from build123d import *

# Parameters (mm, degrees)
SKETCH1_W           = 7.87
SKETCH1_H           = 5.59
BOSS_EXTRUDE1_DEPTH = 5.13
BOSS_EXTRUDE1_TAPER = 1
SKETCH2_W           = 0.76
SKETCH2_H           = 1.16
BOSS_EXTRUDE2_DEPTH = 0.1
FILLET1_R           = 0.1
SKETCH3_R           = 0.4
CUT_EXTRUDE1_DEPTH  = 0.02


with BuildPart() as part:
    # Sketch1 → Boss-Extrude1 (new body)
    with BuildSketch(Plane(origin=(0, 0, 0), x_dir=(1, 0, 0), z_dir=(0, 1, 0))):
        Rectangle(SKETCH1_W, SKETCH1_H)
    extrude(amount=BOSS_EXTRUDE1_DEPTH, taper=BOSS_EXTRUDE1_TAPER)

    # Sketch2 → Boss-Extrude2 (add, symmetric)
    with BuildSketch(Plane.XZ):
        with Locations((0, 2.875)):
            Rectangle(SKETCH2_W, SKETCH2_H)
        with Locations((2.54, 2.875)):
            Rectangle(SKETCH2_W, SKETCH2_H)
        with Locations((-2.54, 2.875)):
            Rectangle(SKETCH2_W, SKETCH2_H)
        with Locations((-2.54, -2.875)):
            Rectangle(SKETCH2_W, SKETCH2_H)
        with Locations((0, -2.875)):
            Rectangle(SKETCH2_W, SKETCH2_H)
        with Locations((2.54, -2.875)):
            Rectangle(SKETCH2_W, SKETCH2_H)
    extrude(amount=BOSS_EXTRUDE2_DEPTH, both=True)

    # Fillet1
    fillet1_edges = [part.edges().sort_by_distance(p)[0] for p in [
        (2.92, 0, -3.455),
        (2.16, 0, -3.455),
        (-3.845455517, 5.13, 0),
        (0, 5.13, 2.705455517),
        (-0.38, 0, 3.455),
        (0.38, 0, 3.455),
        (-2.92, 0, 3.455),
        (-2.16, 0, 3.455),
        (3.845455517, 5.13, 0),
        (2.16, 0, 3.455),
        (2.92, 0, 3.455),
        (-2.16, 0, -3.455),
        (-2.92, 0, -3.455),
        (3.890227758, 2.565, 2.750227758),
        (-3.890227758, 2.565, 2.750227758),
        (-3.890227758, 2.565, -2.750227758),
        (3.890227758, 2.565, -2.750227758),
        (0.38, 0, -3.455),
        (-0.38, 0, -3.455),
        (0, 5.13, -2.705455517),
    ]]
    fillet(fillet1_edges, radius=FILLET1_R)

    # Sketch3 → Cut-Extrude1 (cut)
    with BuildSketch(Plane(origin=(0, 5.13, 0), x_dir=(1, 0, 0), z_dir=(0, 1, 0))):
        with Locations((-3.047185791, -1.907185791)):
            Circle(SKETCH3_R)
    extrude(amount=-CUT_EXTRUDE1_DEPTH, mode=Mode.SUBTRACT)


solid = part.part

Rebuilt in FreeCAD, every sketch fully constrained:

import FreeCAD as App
import Part
import Sketcher


def edges_at(feature, points):
    """Names of the edges that pass closest to the given points."""
    edges = feature.Shape.Edges
    near = lambda p: min(range(len(edges)), key=lambda i: edges[i].distToShape(Part.Vertex(*p))[0])
    return sorted({f"Edge{near(p) + 1}" for p in points})

doc = App.newDocument("Part")
params = doc.addObject("Spreadsheet::Sheet", "Params")
for row, (alias, value) in enumerate([
    ("sketch1_width", "7.87 mm"),
    ("sketch1_height", "5.59 mm"),
    ("pad1_length", "5.13 mm"),
    ("pad1_taper", "-1 deg"),
    ("sketch2_width", "0.76 mm"),
    ("sketch2_height", "1.16 mm"),
    ("pad2_length", "0.2 mm"),
    ("fillet_radius", "0.1 mm"),
    ("sketch3_diameter", "0.8 mm"),
    ("pocket1_length", "0.02 mm"),
], start=1):
    params.set(f"A{row}", alias)
    params.set(f"B{row}", "=" + value)
    params.setAlias(f"B{row}", alias)

body = doc.addObject("PartDesign::Body", "Body")

# Sketch on XZ plane
sketch1 = body.newObject("Sketcher::SketchObject", "Sketch")
sketch1.AttachmentSupport = (doc.getObject("XZ_Plane"), [""])
sketch1.MapMode = "FlatFace"
sketch1.addGeometry([
    Part.LineSegment(App.Vector(-4, -3, 0), App.Vector(-4, 3, 0)),
    Part.LineSegment(App.Vector(-4, 3, 0), App.Vector(4, 3, 0)),
    Part.LineSegment(App.Vector(4, 3, 0), App.Vector(4, -3, 0)),
    Part.LineSegment(App.Vector(4, -3, 0), App.Vector(-4, -3, 0)),
], False)
sketch1.addConstraint([
    Sketcher.Constraint("Coincident", 0, 2, 1, 1),
    Sketcher.Constraint("Coincident", 1, 2, 2, 1),
    Sketcher.Constraint("Coincident", 2, 2, 3, 1),
    Sketcher.Constraint("Coincident", 3, 2, 0, 1),
    Sketcher.Constraint("Vertical", 0),
    Sketcher.Constraint("Horizontal", 1),
    Sketcher.Constraint("Vertical", 2),
    Sketcher.Constraint("Horizontal", 3),
    Sketcher.Constraint("Symmetric", 0, 2, 2, 2, -1, 1),
    Sketcher.Constraint("DistanceX", 1, 1, 1, 2, 7.87),
    Sketcher.Constraint("DistanceY", 0, 1, 0, 2, 5.59),
])
sketch1.setExpression("Constraints[9]", "Params.sketch1_width")
sketch1.setExpression("Constraints[10]", "Params.sketch1_height")
pad1 = body.newObject("PartDesign::Pad", "Pad")
pad1.Profile = sketch1
pad1.setExpression("Length", "Params.pad1_length")
pad1.Reversed = True
pad1.setExpression("TaperAngle", "Params.pad1_taper")

# Sketch on XZ plane
sketch2 = body.newObject("Sketcher::SketchObject", "Sketch001")
sketch2.AttachmentSupport = (doc.getObject("XZ_Plane"), [""])
sketch2.MapMode = "FlatFace"
sketch2.addGeometry([
    Part.LineSegment(App.Vector(-0.4, 3.5, 0), App.Vector(-0.4, 2.3, 0)),  # 0
    Part.LineSegment(App.Vector(-0.4, 2.3, 0), App.Vector(0.4, 2.3, 0)),  # 1
    Part.LineSegment(App.Vector(0.4, 2.3, 0), App.Vector(0.4, 3.5, 0)),  # 2
    Part.LineSegment(App.Vector(0.4, 3.5, 0), App.Vector(-0.4, 3.5, 0)),  # 3
    Part.LineSegment(App.Vector(2.2, 3.5, 0), App.Vector(2.2, 2.3, 0)),  # 4
    Part.LineSegment(App.Vector(2.2, 2.3, 0), App.Vector(2.9, 2.3, 0)),  # 5
    Part.LineSegment(App.Vector(2.9, 2.3, 0), App.Vector(2.9, 3.5, 0)),  # 6
    Part.LineSegment(App.Vector(2.9, 3.5, 0), App.Vector(2.2, 3.5, 0)),  # 7
    Part.LineSegment(App.Vector(-2.9, 3.5, 0), App.Vector(-2.9, 2.3, 0)),  # 8
    Part.LineSegment(App.Vector(-2.9, 2.3, 0), App.Vector(-2.2, 2.3, 0)),  # 9
    Part.LineSegment(App.Vector(-2.2, 2.3, 0), App.Vector(-2.2, 3.5, 0)),  # 10
    Part.LineSegment(App.Vector(-2.2, 3.5, 0), App.Vector(-2.9, 3.5, 0)),  # 11
    Part.LineSegment(App.Vector(-2.9, -2.3, 0), App.Vector(-2.9, -3.5, 0)),  # 12
    Part.LineSegment(App.Vector(-2.9, -3.5, 0), App.Vector(-2.2, -3.5, 0)),  # 13
    Part.LineSegment(App.Vector(-2.2, -3.5, 0), App.Vector(-2.2, -2.3, 0)),  # 14
    Part.LineSegment(App.Vector(-2.2, -2.3, 0), App.Vector(-2.9, -2.3, 0)),  # 15
    Part.LineSegment(App.Vector(-0.4, -2.3, 0), App.Vector(-0.4, -3.5, 0)),  # 16
    Part.LineSegment(App.Vector(-0.4, -3.5, 0), App.Vector(0.4, -3.5, 0)),  # 17
    Part.LineSegment(App.Vector(0.4, -3.5, 0), App.Vector(0.4, -2.3, 0)),  # 18
    Part.LineSegment(App.Vector(0.4, -2.3, 0), App.Vector(-0.4, -2.3, 0)),  # 19
    Part.LineSegment(App.Vector(2.2, -2.3, 0), App.Vector(2.2, -3.5, 0)),  # 20
    Part.LineSegment(App.Vector(2.2, -3.5, 0), App.Vector(2.9, -3.5, 0)),  # 21
    Part.LineSegment(App.Vector(2.9, -3.5, 0), App.Vector(2.9, -2.3, 0)),  # 22
    Part.LineSegment(App.Vector(2.9, -2.3, 0), App.Vector(2.2, -2.3, 0)),  # 23
], False)
sketch2.addConstraint([
    Sketcher.Constraint("Coincident", 0, 2, 1, 1),
    Sketcher.Constraint("Coincident", 1, 2, 2, 1),
    Sketcher.Constraint("Coincident", 2, 2, 3, 1),
    Sketcher.Constraint("Coincident", 3, 2, 0, 1),
    Sketcher.Constraint("Coincident", 4, 2, 5, 1),
    Sketcher.Constraint("Coincident", 5, 2, 6, 1),
    Sketcher.Constraint("Coincident", 6, 2, 7, 1),
    Sketcher.Constraint("Coincident", 7, 2, 4, 1),
    Sketcher.Constraint("Coincident", 8, 2, 9, 1),
    Sketcher.Constraint("Coincident", 9, 2, 10, 1),
    Sketcher.Constraint("Coincident", 10, 2, 11, 1),
    Sketcher.Constraint("Coincident", 11, 2, 8, 1),
    Sketcher.Constraint("Coincident", 12, 2, 13, 1),
    Sketcher.Constraint("Coincident", 13, 2, 14, 1),
    Sketcher.Constraint("Coincident", 14, 2, 15, 1),
    Sketcher.Constraint("Coincident", 15, 2, 12, 1),
    Sketcher.Constraint("Coincident", 16, 2, 17, 1),
    Sketcher.Constraint("Coincident", 17, 2, 18, 1),
    Sketcher.Constraint("Coincident", 18, 2, 19, 1),
    Sketcher.Constraint("Coincident", 19, 2, 16, 1),
    Sketcher.Constraint("Coincident", 20, 2, 21, 1),
    Sketcher.Constraint("Coincident", 21, 2, 22, 1),
    Sketcher.Constraint("Coincident", 22, 2, 23, 1),
    Sketcher.Constraint("Coincident", 23, 2, 20, 1),
    Sketcher.Constraint("Vertical", 0),
    Sketcher.Constraint("Horizontal", 1),
    Sketcher.Constraint("Vertical", 2),
    Sketcher.Constraint("Horizontal", 3),
    Sketcher.Constraint("Vertical", 4),
    Sketcher.Constraint("Horizontal", 5),
    Sketcher.Constraint("Vertical", 6),
    Sketcher.Constraint("Horizontal", 7),
    Sketcher.Constraint("Vertical", 8),
    Sketcher.Constraint("Horizontal", 9),
    Sketcher.Constraint("Vertical", 10),
    Sketcher.Constraint("Horizontal", 11),
    Sketcher.Constraint("Vertical", 12),
    Sketcher.Constraint("Horizontal", 13),
    Sketcher.Constraint("Vertical", 14),
    Sketcher.Constraint("Horizontal", 15),
    Sketcher.Constraint("Vertical", 16),
    Sketcher.Constraint("Horizontal", 17),
    Sketcher.Constraint("Vertical", 18),
    Sketcher.Constraint("Horizontal", 19),
    Sketcher.Constraint("Vertical", 20),
    Sketcher.Constraint("Horizontal", 21),
    Sketcher.Constraint("Vertical", 22),
    Sketcher.Constraint("Horizontal", 23),
    Sketcher.Constraint("Symmetric", 6, 2, 12, 2, -1, 1),
    Sketcher.Constraint("Symmetric", 4, 2, 14, 2, -1, 1),
    Sketcher.Constraint("Symmetric", 2, 2, 16, 2, -1, 1),
    Sketcher.Constraint("Symmetric", 0, 2, 18, 2, -1, 1),
    Sketcher.Constraint("Symmetric", 10, 2, 20, 2, -1, 1),
    Sketcher.Constraint("Symmetric", 8, 2, 22, 2, -1, 1),
    Sketcher.Constraint("Symmetric", 5, 2, 8, 2, -2),
    Sketcher.Constraint("Symmetric", 7, 2, 10, 2, -2),
    Sketcher.Constraint("Horizontal", 1, 2, 4, 2),
    Sketcher.Constraint("Horizontal", 3, 2, 6, 2),
    Sketcher.Constraint("Vertical", 3, 2, 16, 2),
    Sketcher.Constraint("Equal", 3, 5),
    Sketcher.Constraint("DistanceX", 1, 1, 1, 2, 0.76),
    Sketcher.Constraint("DistanceY", 0, 2, 0, 1, 1.16),
    Sketcher.Constraint("DistanceX", 0, 2, 5, 2, 3.3),
    Sketcher.Constraint("DistanceY", 12, 2, 8, 2, 5.75),
])
sketch2.setExpression("Constraints[60]", "Params.sketch2_width")
sketch2.setExpression("Constraints[61]", "Params.sketch2_height")
pad2 = body.newObject("PartDesign::Pad", "Pad001")
pad2.Profile = sketch2
pad2.setExpression("Length", "Params.pad2_length")
pad2.Midplane = True
doc.recompute()

fillet = body.newObject("PartDesign::Fillet", "Fillet")
fillet.Base = (pad2, edges_at(pad2, [
    (2.92, 0, -3.455),
    (2.16, 0, -3.455),
    (-3.845, 5.13, 0),
    (0, 5.13, 2.705),
    (-0.38, 0, 3.455),
    (0.38, 0, 3.455),
    (-2.92, 0, 3.455),
    (-2.16, 0, 3.455),
    (3.845, 5.13, 0),
    (2.16, 0, 3.455),
    (2.92, 0, 3.455),
    (-2.16, 0, -3.455),
    (-2.92, 0, -3.455),
    (3.89, 2.565, 2.75),
    (-3.89, 2.565, 2.75),
    (-3.89, 2.565, -2.75),
    (3.89, 2.565, -2.75),
    (0.38, 0, -3.455),
    (-0.38, 0, -3.455),
    (0, 5.13, -2.705),
]))
fillet.setExpression("Radius", "Params.fillet_radius")

# Sketch on XZ plane
sketch3 = body.newObject("Sketcher::SketchObject", "Sketch002")
sketch3.AttachmentSupport = (doc.getObject("XZ_Plane"), [""])
sketch3.MapMode = "FlatFace"
sketch3.AttachmentOffset = App.Placement(App.Vector(0, 0, -5.13), App.Rotation())
sketch3.addGeometry(Part.Circle(App.Vector(-3.05, 1.91, 0), App.Vector(0, 0, 1), 0.4), False)
sketch3.addConstraint([
    Sketcher.Constraint("Diameter", 0, 0.8),
    Sketcher.Constraint("DistanceX", 0, 3, -1, 1, 3.047186),
    Sketcher.Constraint("DistanceY", -1, 1, 0, 3, 1.907186),
])
sketch3.setExpression("Constraints[0]", "Params.sketch3_diameter")
pocket1 = body.newObject("PartDesign::Pocket", "Pocket")
pocket1.Profile = sketch3
pocket1.setExpression("Length", "Params.pocket1_length")
pocket1.Reversed = True

doc.recompute()
